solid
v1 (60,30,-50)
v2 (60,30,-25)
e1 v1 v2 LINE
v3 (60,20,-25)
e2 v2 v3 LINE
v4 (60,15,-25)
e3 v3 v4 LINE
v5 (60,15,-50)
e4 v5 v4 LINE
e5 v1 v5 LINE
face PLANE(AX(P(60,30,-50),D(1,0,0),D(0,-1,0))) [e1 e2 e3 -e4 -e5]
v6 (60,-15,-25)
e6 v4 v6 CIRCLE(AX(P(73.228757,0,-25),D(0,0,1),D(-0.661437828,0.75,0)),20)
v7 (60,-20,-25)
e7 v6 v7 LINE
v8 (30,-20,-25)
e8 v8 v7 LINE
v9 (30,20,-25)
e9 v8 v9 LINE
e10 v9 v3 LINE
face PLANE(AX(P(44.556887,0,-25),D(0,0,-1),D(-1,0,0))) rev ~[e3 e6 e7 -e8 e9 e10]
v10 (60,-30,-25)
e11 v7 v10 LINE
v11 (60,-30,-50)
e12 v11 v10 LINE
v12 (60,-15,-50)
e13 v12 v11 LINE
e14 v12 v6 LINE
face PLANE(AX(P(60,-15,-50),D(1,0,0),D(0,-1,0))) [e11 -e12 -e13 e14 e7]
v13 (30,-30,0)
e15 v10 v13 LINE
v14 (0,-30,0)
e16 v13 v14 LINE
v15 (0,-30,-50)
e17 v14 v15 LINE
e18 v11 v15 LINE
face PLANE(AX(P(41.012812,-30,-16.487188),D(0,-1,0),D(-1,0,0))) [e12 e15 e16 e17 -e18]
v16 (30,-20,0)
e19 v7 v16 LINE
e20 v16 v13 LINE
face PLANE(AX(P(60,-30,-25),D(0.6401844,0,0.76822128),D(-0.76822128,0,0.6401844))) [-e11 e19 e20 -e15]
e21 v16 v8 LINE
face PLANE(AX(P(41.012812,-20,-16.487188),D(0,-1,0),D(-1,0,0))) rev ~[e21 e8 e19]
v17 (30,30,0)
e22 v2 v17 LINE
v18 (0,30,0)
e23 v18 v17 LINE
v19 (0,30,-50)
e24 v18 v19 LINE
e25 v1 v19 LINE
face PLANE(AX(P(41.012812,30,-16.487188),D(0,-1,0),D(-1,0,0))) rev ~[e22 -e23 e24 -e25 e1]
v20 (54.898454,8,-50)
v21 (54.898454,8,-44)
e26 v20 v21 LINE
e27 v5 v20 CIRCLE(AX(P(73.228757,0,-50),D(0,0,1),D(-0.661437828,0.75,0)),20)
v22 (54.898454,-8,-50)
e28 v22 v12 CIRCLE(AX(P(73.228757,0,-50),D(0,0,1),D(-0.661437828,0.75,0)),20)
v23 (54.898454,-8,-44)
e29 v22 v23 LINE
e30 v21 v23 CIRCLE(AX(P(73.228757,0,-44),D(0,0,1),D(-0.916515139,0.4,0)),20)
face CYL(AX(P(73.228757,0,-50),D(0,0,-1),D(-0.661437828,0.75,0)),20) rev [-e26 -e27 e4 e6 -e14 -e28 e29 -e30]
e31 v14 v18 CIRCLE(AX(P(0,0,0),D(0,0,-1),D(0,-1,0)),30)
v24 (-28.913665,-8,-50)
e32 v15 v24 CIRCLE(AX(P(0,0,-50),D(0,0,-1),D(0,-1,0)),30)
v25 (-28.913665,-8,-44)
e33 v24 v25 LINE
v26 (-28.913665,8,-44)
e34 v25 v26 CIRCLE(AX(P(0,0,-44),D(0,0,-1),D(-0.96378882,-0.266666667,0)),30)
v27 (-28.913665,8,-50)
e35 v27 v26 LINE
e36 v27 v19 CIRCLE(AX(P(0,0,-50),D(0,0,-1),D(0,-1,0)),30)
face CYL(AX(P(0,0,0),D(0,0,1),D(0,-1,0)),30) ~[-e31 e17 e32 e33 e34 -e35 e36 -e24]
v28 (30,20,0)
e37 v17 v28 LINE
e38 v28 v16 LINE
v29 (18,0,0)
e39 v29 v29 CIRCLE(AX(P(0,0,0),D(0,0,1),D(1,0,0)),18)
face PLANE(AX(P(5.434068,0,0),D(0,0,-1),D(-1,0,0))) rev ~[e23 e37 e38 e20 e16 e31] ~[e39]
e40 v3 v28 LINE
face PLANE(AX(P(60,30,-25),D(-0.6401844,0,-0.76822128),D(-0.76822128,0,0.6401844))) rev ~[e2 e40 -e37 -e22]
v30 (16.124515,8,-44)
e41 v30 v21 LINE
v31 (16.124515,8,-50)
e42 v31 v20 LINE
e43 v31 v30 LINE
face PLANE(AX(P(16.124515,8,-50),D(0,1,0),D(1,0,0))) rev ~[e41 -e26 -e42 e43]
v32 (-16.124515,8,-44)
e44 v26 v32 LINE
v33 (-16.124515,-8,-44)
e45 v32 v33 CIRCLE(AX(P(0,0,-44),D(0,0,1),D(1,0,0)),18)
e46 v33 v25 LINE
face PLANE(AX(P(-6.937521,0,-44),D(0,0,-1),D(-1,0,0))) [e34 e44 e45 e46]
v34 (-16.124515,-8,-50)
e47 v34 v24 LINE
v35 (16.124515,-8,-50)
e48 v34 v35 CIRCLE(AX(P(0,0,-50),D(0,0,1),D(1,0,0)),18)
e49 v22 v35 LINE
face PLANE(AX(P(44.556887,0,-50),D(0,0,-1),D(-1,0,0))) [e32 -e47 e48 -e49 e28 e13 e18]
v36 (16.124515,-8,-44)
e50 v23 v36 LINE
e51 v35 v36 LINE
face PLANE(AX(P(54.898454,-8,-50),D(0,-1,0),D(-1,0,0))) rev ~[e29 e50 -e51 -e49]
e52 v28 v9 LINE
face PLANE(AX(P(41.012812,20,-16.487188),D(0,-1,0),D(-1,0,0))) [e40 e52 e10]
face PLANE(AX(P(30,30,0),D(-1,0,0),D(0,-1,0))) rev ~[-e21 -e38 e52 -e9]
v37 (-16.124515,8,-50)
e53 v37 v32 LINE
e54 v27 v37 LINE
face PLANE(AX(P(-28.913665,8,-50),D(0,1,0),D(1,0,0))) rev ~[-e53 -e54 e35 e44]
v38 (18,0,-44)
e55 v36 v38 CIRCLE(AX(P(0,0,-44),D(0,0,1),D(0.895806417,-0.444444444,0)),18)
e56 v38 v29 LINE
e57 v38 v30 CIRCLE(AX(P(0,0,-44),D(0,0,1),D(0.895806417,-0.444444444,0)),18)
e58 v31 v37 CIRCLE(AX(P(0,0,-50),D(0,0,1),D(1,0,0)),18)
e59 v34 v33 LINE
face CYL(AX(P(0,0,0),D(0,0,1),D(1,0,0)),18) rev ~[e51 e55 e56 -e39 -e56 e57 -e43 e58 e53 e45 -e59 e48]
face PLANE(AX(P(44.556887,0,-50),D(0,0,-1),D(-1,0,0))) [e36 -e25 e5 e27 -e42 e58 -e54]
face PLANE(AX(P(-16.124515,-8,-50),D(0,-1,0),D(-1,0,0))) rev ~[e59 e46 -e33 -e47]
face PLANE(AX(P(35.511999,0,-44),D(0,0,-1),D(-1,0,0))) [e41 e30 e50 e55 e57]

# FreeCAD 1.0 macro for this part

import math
import FreeCAD as App
import Part
import Sketcher

V = App.Vector
Q = App.Units.Quantity


def add_polygon(sketch, points):
    """Adds a closed chain of lines whose ends are joined by coincident constraints."""
    first, n = sketch.GeometryCount, len(points)
    for a, b in zip(points, points[1:] + points[:1]):
        sketch.addGeometry(Part.LineSegment(App.Vector(*a, 0), App.Vector(*b, 0)), False)
    for i in range(n):
        sketch.addConstraint(Sketcher.Constraint("Coincident", first + i, 2, first + (i + 1) % n, 1))

doc = App.newDocument("Part")
body = doc.addObject("PartDesign::Body", "Body")

# Sketch on XY plane
sketch1 = body.newObject("Sketcher::SketchObject", "Sketch")
sketch1.AttachmentSupport = (doc.getObject("XY_Plane"), [""])
sketch1.MapMode = "FlatFace"
sketch1.addGeometry([
    Part.LineSegment(V(30, 30, 0), V(0, 30, 0)),  # 0
    Part.ArcOfCircle(Part.Circle(V(0, 0, 0), V(0, 0, 1), 30), math.radians(90), math.radians(270)),  # 1
    Part.LineSegment(V(0, -30, 0), V(30, -30, 0)),  # 2
    Part.LineSegment(V(30, -30, 0), V(30, 30, 0)),  # 3
    Part.Circle(V(0, 0, 0), V(0, 0, 1), 18),  # 4
], False)
sketch1.addConstraint([
    Sketcher.Constraint("Tangent", 0, 2, 1, 1),
    Sketcher.Constraint("Tangent", 1, 2, 2, 1),
    Sketcher.Constraint("Coincident", 2, 2, 3, 1),
    Sketcher.Constraint("Coincident", 3, 2, 0, 1),
    Sketcher.Constraint("Horizontal", 0),
    Sketcher.Constraint("Horizontal", 2),
    Sketcher.Constraint("Vertical", 3),
    Sketcher.Constraint("Coincident", 1, 3, -1, 1),
    Sketcher.Constraint("Coincident", 4, 3, -1, 1),
    Sketcher.Constraint("Diameter", 4, Q("36 mm")),
    Sketcher.Constraint("Radius", 1, Q("30 mm")),
    Sketcher.Constraint("DistanceX", 0, 2, 0, 1, Q("30 mm")),
])
pad1 = body.newObject("PartDesign::Pad", "Pad")
pad1.Profile = sketch1
pad1.Length = 50
pad1.Reversed = True

# Sketch on XY plane
sketch2 = body.newObject("Sketcher::SketchObject", "Sketch001")
sketch2.AttachmentSupport = (doc.getObject("XY_Plane"), [""])
sketch2.MapMode = "FlatFace"
sketch2.AttachmentOffset = App.Placement(V(0, 0, -50), App.Rotation())
sketch2.addGeometry([
    Part.LineSegment(V(60, 30, 0), V(60, 15, 0)),  # 0
    Part.ArcOfCircle(Part.Circle(V(73, 0, 0), V(0, 0, 1), 20), math.radians(131), math.radians(229)),  # 1
    Part.LineSegment(V(60, -15, 0), V(60, -30, 0)),  # 2
    Part.LineSegment(V(60, -30, 0), V(30, -30, 0)),  # 3
    Part.LineSegment(V(30, -30, 0), V(30, 30, 0)),  # 4
    Part.LineSegment(V(30, 30, 0), V(60, 30, 0)),  # 5
], False)
sketch2.addConstraint([
    Sketcher.Constraint("Coincident", 0, 2, 1, 1),
    Sketcher.Constraint("Coincident", 1, 2, 2, 1),
    Sketcher.Constraint("Coincident", 2, 2, 3, 1),
    Sketcher.Constraint("Coincident", 3, 2, 4, 1),
    Sketcher.Constraint("Coincident", 4, 2, 5, 1),
    Sketcher.Constraint("Coincident", 5, 2, 0, 1),
    Sketcher.Constraint("Vertical", 0),
    Sketcher.Constraint("Vertical", 2),
    Sketcher.Constraint("Horizontal", 3),
    Sketcher.Constraint("Vertical", 4),
    Sketcher.Constraint("Horizontal", 5),
    Sketcher.Constraint("Symmetric", 0, 2, 1, 2, -1),
    Sketcher.Constraint("Equal", 0, 2),
    Sketcher.Constraint("Radius", 1, Q("20 mm")),
    Sketcher.Constraint("DistanceX", 3, 2, 3, 1, Q("30 mm")),
    Sketcher.Constraint("DistanceY", 0, 2, 0, 1, Q("15 mm")),
    Sketcher.Constraint("DistanceY", 4, 1, 4, 2, Q("60 mm")),
    Sketcher.Constraint("DistanceX", -1, 1, 0, 2, Q("60 mm")),
])
pad2 = body.newObject("PartDesign::Pad", "Pad001")
pad2.Profile = sketch2
pad2.Length = 25

# Sketch on XZ plane
sketch3 = body.newObject("Sketcher::SketchObject", "Sketch002")
sketch3.AttachmentSupport = (doc.getObject("XZ_Plane"), [""])
sketch3.MapMode = "FlatFace"
sketch3.AttachmentOffset = App.Placement(V(0, 0, -30), App.Rotation())
add_polygon(sketch3, [(30, 0), (60, -25), (30, -25)])  # lines 0-2
sketch3.addConstraint([
    Sketcher.Constraint("Horizontal", 1),
    Sketcher.Constraint("Vertical", 2),
    Sketcher.Constraint("PointOnObject", 2, 2, -1),
    Sketcher.Constraint("DistanceX", 1, 2, 1, 1, Q("30 mm")),
    Sketcher.Constraint("DistanceY", 2, 1, 2, 2, Q("25 mm")),
    Sketcher.Constraint("DistanceX", -1, 1, 0, 2, Q("60 mm")),
])
pad3 = body.newObject("PartDesign::Pad", "Pad002")
pad3.Profile = sketch3
pad3.Length = 10

# Sketch on XZ plane
sketch4 = body.newObject("Sketcher::SketchObject", "Sketch003")
sketch4.AttachmentSupport = (doc.getObject("XZ_Plane"), [""])
sketch4.MapMode = "FlatFace"
sketch4.AttachmentOffset = App.Placement(V(0, 0, 30), App.Rotation())
add_polygon(sketch4, [(30, 0), (30, -25), (60, -25)])  # lines 0-2
sketch4.addConstraint([
    Sketcher.Constraint("Vertical", 0),
    Sketcher.Constraint("Horizontal", 1),
    Sketcher.Constraint("PointOnObject", 2, 2, -1),
    Sketcher.Constraint("DistanceX", 1, 1, 1, 2, Q("30 mm")),
    Sketcher.Constraint("DistanceY", 0, 2, 0, 1, Q("25 mm")),
    Sketcher.Constraint("DistanceX", -1, 1, 0, 2, Q("30 mm")),
])
pad4 = body.newObject("PartDesign::Pad", "Pad003")
pad4.Profile = sketch4
pad4.Length = 10
pad4.Reversed = True

# Sketch on XY plane
sketch5 = body.newObject("Sketcher::SketchObject", "Sketch004")
sketch5.AttachmentSupport = (doc.getObject("XY_Plane"), [""])
sketch5.MapMode = "FlatFace"
sketch5.AttachmentOffset = App.Placement(V(0, 0, -50), App.Rotation())
sketch5.addGeometry([
    Part.LineSegment(V(-29, 8, 0), V(-16, 8, 0)),
    Part.ArcOfCircle(Part.Circle(V(0, 0, 0), V(0, 0, 1), 18), math.radians(-154), math.radians(154)),
    Part.LineSegment(V(-16, -8, 0), V(-29, -8, 0)),
    Part.ArcOfCircle(Part.Circle(V(0, 0, 0), V(0, 0, 1), 30), math.radians(165), math.radians(195)),
], False)
sketch5.addConstraint([
    Sketcher.Constraint("Coincident", 0, 2, 1, 2),
    Sketcher.Constraint("Coincident", 1, 1, 2, 1),
    Sketcher.Constraint("Coincident", 2, 2, 3, 2),
    Sketcher.Constraint("Coincident", 3, 1, 0, 1),
    Sketcher.Constraint("Horizontal", 0),
    Sketcher.Constraint("Horizontal", 2),
    Sketcher.Constraint("Coincident", 1, 3, -1, 1),
    Sketcher.Constraint("Coincident", 3, 3, -1, 1),
    Sketcher.Constraint("Vertical", 0, 2, 1, 1),
    Sketcher.Constraint("Radius", 1, Q("18 mm")),
    Sketcher.Constraint("Radius", 3, Q("30 mm")),
    Sketcher.Constraint("DistanceY", -1, 1, 0, 2, Q("8 mm")),
])
pocket1 = body.newObject("PartDesign::Pocket", "Pocket")
pocket1.Profile = sketch5
pocket1.Length = 6
pocket1.Reversed = True

# Sketch on XY plane
sketch6 = body.newObject("Sketcher::SketchObject", "Sketch005")
sketch6.AttachmentSupport = (doc.getObject("XY_Plane"), [""])
sketch6.MapMode = "FlatFace"
sketch6.AttachmentOffset = App.Placement(V(0, 0, -50), App.Rotation())
sketch6.addGeometry([
    Part.LineSegment(V(16, 8, 0), V(55, 8, 0)),
    Part.ArcOfCircle(Part.Circle(V(73, 0, 0), V(0, 0, 1), 20), math.radians(156), math.radians(204)),
    Part.LineSegment(V(55, -8, 0), V(16, -8, 0)),
    Part.ArcOfCircle(Part.Circle(V(0, 0, 0), V(0, 0, 1), 18), math.radians(-26), math.radians(26)),
], False)
sketch6.addConstraint([
    Sketcher.Constraint("Coincident", 0, 2, 1, 1),
    Sketcher.Constraint("Coincident", 1, 2, 2, 1),
    Sketcher.Constraint("Coincident", 2, 2, 3, 1),
    Sketcher.Constraint("Coincident", 3, 2, 0, 1),
    Sketcher.Constraint("Horizontal", 0),
    Sketcher.Constraint("Horizontal", 2),
    Sketcher.Constraint("Coincident", 3, 3, -1, 1),
    Sketcher.Constraint("Symmetric", 0, 2, 1, 2, -1),
    Sketcher.Constraint("Radius", 1, Q("20 mm")),
    Sketcher.Constraint("Radius", 3, Q("18 mm")),
    Sketcher.Constraint("DistanceY", -1, 1, 0, 2, Q("8 mm")),
    Sketcher.Constraint("DistanceX", 0, 1, 0, 2, Q("38.773938 mm")),
])
pocket2 = body.newObject("PartDesign::Pocket", "Pocket001")
pocket2.Profile = sketch6
pocket2.Length = 6
pocket2.Reversed = True

doc.recompute()
